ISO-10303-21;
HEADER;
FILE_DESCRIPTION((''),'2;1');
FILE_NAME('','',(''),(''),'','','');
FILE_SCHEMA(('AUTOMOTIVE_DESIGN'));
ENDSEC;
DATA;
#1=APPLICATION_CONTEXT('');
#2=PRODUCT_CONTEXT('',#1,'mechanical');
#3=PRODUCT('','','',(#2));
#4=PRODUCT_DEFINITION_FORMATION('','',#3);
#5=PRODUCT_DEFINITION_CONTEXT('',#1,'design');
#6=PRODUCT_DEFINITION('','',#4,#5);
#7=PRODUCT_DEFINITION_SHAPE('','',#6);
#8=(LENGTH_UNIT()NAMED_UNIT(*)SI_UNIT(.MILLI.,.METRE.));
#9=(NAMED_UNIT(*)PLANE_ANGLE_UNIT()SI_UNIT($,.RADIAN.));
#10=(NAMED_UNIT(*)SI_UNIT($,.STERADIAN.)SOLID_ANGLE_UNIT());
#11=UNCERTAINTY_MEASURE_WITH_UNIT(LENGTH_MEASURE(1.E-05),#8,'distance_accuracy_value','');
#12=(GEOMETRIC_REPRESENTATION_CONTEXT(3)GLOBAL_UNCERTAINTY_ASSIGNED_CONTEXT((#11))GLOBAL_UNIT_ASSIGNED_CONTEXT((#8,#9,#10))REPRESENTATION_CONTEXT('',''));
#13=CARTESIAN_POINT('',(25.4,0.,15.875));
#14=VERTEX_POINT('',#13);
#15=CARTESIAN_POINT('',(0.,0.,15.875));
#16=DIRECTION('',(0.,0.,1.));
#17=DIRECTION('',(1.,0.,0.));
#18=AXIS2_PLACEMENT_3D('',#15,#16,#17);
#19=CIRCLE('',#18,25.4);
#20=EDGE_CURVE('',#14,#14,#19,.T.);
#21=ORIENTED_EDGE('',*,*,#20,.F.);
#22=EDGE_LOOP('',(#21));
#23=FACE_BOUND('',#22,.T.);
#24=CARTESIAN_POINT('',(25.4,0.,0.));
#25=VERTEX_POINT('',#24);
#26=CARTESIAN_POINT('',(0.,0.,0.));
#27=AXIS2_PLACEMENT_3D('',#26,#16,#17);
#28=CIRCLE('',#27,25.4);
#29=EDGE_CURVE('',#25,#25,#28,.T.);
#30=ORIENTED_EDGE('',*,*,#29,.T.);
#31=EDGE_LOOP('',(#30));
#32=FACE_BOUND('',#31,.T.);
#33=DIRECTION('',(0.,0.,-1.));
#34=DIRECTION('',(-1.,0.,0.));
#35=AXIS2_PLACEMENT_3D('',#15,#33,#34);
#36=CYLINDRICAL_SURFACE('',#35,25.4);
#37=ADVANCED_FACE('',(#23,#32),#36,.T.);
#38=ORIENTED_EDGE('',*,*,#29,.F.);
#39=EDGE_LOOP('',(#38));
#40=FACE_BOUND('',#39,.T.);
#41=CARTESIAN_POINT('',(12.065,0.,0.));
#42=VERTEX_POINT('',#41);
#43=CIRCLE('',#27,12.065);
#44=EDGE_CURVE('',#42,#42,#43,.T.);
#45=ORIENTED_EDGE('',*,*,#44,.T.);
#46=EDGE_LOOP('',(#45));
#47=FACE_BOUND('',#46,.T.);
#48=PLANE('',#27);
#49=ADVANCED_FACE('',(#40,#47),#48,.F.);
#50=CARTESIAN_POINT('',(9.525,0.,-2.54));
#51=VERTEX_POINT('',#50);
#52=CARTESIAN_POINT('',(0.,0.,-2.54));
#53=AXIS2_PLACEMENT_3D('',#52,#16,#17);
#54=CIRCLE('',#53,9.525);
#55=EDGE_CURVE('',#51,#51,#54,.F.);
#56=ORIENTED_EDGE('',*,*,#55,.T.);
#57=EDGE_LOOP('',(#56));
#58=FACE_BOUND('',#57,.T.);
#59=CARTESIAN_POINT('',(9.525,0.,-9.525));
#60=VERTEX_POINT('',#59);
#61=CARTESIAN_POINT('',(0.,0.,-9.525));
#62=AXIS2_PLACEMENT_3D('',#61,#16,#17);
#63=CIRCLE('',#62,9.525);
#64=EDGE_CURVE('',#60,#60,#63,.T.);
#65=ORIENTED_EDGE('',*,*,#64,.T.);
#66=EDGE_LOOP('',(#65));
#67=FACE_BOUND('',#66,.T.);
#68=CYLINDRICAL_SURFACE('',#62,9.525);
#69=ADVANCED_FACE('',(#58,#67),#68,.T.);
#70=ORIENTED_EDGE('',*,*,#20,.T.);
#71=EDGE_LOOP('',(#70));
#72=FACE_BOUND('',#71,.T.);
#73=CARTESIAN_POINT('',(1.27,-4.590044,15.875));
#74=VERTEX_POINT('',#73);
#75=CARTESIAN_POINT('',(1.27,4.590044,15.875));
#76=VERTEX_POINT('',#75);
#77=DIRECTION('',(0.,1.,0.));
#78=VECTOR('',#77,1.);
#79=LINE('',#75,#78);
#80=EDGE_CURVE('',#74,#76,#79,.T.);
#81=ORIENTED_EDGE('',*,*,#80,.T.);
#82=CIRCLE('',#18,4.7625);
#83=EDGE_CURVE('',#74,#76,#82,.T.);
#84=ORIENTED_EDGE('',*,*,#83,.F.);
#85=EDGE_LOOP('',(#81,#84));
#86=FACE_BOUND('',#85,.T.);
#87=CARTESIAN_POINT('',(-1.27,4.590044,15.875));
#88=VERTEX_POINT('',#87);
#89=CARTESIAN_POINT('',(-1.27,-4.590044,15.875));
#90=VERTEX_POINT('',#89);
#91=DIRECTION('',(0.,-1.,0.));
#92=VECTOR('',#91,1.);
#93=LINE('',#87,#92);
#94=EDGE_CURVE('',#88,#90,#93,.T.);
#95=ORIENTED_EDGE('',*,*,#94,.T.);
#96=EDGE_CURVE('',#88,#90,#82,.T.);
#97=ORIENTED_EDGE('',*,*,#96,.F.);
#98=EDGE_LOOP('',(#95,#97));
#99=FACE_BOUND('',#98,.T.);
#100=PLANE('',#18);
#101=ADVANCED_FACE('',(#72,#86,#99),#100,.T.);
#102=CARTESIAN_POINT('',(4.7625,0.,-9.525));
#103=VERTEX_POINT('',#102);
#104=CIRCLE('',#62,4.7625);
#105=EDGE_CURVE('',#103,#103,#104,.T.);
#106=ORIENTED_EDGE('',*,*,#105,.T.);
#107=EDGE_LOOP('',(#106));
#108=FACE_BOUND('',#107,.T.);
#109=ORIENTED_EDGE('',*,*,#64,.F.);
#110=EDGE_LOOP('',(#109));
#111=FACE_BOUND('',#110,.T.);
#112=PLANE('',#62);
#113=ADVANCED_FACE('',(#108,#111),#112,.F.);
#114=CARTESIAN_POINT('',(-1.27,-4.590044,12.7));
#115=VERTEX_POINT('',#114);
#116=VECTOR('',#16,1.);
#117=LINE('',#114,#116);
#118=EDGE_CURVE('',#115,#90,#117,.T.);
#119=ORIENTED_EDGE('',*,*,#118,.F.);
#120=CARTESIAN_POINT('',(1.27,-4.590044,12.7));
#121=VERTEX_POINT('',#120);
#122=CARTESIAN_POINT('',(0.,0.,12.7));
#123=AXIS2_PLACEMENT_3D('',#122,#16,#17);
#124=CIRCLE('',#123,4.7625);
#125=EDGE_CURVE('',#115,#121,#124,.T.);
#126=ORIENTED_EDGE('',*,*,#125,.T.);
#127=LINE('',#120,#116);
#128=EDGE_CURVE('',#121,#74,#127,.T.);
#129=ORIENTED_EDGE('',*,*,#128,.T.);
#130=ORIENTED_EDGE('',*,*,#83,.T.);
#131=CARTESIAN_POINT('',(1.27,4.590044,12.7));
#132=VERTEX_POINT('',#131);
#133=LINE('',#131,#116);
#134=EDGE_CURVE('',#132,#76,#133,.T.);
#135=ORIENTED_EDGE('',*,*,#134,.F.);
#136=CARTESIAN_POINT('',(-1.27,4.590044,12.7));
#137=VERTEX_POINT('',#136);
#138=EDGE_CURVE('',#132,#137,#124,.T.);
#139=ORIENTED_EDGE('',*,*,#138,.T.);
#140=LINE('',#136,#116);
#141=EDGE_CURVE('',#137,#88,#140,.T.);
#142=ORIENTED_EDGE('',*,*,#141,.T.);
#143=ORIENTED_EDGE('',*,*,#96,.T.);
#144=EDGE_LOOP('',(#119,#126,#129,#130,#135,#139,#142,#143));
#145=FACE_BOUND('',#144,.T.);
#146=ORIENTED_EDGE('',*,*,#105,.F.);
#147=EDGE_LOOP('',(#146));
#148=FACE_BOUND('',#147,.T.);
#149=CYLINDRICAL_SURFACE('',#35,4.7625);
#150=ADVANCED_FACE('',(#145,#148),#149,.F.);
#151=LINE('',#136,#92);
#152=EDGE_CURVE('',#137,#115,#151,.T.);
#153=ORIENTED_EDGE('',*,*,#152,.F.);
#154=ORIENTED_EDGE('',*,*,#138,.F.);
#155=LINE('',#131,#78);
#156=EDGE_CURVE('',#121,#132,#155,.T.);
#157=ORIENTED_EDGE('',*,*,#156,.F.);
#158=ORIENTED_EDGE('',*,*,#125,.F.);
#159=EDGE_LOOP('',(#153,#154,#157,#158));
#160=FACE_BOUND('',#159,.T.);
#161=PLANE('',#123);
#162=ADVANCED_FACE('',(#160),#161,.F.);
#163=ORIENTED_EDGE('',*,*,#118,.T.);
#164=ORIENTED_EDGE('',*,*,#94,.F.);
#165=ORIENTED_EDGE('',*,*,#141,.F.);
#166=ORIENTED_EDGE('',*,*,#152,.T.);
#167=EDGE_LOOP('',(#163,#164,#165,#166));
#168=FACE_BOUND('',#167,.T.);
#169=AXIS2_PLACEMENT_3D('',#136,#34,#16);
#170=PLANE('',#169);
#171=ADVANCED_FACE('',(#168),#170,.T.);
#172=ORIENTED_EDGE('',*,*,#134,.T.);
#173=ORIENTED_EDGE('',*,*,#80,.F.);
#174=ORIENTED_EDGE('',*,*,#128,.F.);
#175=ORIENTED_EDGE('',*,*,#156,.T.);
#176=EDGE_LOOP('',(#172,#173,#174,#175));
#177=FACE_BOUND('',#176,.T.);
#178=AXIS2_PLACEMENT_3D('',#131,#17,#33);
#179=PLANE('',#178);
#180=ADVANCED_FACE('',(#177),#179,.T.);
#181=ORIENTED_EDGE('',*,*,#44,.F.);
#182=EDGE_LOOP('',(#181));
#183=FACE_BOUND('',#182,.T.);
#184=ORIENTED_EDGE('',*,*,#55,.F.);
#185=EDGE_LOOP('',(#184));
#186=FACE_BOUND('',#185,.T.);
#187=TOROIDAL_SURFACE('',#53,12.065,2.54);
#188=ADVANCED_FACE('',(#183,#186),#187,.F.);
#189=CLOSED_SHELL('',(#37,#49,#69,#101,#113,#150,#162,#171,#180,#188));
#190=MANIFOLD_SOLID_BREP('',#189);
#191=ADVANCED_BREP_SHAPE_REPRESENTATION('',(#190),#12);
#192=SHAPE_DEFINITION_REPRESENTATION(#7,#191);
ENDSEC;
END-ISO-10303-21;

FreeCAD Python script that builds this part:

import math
import FreeCAD as App
import Part
import Sketcher

V = App.Vector
Q = App.Units.Quantity


def edges_at(feature, points):
    """Names of the edges that pass closest to the given points."""
    edges = feature.Shape.Edges
    near = lambda p: min(range(len(edges)), key=lambda i: edges[i].distToShape(Part.Vertex(*p))[0])
    return sorted({f"Edge{near(p) + 1}" for p in points})

doc = App.newDocument("Part")
body = doc.addObject("PartDesign::Body", "Body")

# Sketch on XY plane
sketch1 = body.newObject("Sketcher::SketchObject", "Sketch")
sketch1.AttachmentSupport = (doc.getObject("XY_Plane"), [""])
sketch1.MapMode = "FlatFace"
sketch1.addGeometry(Part.Circle(V(0, 0, 0), V(0, 0, 1), 25.4), False)
sketch1.addGeometry(Part.Circle(V(0, 0, 0), V(0, 0, 1), 4.8), False)
sketch1.addConstraint(Sketcher.Constraint("Coincident", 0, 3, -1, 1))
sketch1.addConstraint(Sketcher.Constraint("Coincident", 1, 3, -1, 1))
sketch1.addConstraint(Sketcher.Constraint("Diameter", 0, Q("2 in")))
sketch1.addConstraint(Sketcher.Constraint("Diameter", 1, Q("0.375 in")))
pad1 = body.newObject("PartDesign::Pad", "Pad")
pad1.Profile = sketch1
pad1.Length = Q("0.625 in")

# Sketch on XY plane
sketch2 = body.newObject("Sketcher::SketchObject", "Sketch001")
sketch2.AttachmentSupport = (doc.getObject("XY_Plane"), [""])
sketch2.MapMode = "FlatFace"
sketch2.addGeometry(Part.Circle(V(0, 0, 0), V(0, 0, 1), 9.5), False)
sketch2.addGeometry(Part.Circle(V(0, 0, 0), V(0, 0, 1), 4.8), False)
sketch2.addConstraint(Sketcher.Constraint("Coincident", 0, 3, -1, 1))
sketch2.addConstraint(Sketcher.Constraint("Coincident", 1, 3, -1, 1))
sketch2.addConstraint(Sketcher.Constraint("Diameter", 0, Q("0.75 in")))
sketch2.addConstraint(Sketcher.Constraint("Diameter", 1, Q("0.375 in")))
pad2 = body.newObject("PartDesign::Pad", "Pad001")
pad2.Profile = sketch2
pad2.Length = Q("0.375 in")
pad2.Reversed = True
doc.recompute()

fillet = body.newObject("PartDesign::Fillet", "Fillet")
fillet.Base = (pad2, edges_at(pad2, [(-9.525, 0, 0)]))
fillet.Radius = Q("0.1 in")

# Sketch on XY plane
sketch3 = body.newObject("Sketcher::SketchObject", "Sketch002")
sketch3.AttachmentSupport = (doc.getObject("XY_Plane"), [""])
sketch3.MapMode = "FlatFace"
sketch3.AttachmentOffset = App.Placement(V(0, 0, 0.625 * 25.4), App.Rotation())
sketch3.addGeometry(Part.LineSegment(V(-1.3, 4.6, 0), V(-1.3, -4.6, 0)), False)
sketch3.addGeometry(Part.ArcOfCircle(Part.Circle(V(0, 0, 0), V(0, 0, 1), 4.8), math.radians(-105), math.radians(-75)), False)
sketch3.addGeometry(Part.LineSegment(V(1.3, -4.6, 0), V(1.3, 4.6, 0)), False)
sketch3.addGeometry(Part.ArcOfCircle(Part.Circle(V(0, 0, 0), V(0, 0, 1), 4.8), math.radians(75), math.radians(105)), False)
sketch3.addConstraint(Sketcher.Constraint("Coincident", 0, 2, 1, 1))
sketch3.addConstraint(Sketcher.Constraint("Coincident", 1, 2, 2, 1))
sketch3.addConstraint(Sketcher.Constraint("Coincident", 2, 2, 3, 1))
sketch3.addConstraint(Sketcher.Constraint("Coincident", 3, 2, 0, 1))
sketch3.addConstraint(Sketcher.Constraint("Vertical", 0))
sketch3.addConstraint(Sketcher.Constraint("Vertical", 2))
sketch3.addConstraint(Sketcher.Constraint("Coincident", 1, 3, -1, 1))
sketch3.addConstraint(Sketcher.Constraint("Coincident", 3, 3, -1, 1))
sketch3.addConstraint(Sketcher.Constraint("Equal", 1, 3))
sketch3.addConstraint(Sketcher.Constraint("Horizontal", 0, 2, 1, 2))
sketch3.addConstraint(Sketcher.Constraint("Radius", 1, Q("0.1875 in")))
sketch3.addConstraint(Sketcher.Constraint("DistanceX", 0, 2, 1, 2, Q("0.1 in")))
pad3 = body.newObject("PartDesign::Pad", "Pad002")
pad3.Profile = sketch3
pad3.Length = Q("0.125 in")
pad3.Reversed = True

doc.recompute()
